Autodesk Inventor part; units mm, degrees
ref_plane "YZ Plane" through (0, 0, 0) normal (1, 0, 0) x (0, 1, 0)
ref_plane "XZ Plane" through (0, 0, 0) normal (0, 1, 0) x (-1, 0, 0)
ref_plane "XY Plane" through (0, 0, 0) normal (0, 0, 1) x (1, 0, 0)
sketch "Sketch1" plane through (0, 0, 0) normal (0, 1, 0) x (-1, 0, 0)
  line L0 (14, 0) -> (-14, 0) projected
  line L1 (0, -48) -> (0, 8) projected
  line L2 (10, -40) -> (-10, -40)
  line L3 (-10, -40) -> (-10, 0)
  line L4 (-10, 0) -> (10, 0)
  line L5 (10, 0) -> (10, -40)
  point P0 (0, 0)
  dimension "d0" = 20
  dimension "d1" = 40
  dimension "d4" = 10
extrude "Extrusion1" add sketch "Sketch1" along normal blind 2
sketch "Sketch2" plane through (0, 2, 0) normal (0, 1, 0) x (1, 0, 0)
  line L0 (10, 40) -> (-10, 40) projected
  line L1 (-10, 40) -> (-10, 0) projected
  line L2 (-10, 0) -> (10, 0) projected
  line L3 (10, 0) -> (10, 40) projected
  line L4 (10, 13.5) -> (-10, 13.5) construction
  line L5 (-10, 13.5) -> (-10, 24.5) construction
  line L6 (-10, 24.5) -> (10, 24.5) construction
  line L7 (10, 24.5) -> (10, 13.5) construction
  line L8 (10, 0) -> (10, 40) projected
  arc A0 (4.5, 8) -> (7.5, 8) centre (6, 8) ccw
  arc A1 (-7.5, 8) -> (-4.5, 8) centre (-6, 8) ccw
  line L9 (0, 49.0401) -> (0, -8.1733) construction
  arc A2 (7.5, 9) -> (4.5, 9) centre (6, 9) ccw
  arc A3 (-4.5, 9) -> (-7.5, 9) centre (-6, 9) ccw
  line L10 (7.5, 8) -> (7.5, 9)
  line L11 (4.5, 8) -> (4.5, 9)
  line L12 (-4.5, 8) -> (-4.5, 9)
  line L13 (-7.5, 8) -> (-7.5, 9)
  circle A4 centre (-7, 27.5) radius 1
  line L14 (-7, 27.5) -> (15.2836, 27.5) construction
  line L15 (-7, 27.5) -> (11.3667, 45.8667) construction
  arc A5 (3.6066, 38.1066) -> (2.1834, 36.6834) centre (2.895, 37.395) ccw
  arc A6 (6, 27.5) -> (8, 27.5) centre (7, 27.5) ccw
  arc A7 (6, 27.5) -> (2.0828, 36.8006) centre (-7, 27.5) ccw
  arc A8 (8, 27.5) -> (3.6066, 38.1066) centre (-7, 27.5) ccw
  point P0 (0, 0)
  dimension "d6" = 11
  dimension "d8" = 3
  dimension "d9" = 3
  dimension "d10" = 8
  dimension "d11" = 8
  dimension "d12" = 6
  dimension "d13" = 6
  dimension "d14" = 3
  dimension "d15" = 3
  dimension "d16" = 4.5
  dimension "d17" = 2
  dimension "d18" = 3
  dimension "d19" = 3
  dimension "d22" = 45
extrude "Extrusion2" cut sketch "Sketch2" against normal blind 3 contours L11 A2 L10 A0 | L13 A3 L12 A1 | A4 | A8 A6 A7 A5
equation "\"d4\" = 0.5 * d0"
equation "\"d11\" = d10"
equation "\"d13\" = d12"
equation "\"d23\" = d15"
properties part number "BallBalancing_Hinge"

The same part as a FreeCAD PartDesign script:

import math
import FreeCAD as App
import Part
import Sketcher

V = App.Vector

doc = App.newDocument("Part")
body = doc.addObject("PartDesign::Body", "Body")

# Sketch on XZ plane
sketch1 = body.newObject("Sketcher::SketchObject", "Sketch")
sketch1.AttachmentSupport = (doc.getObject("XZ_Plane"), [""])
sketch1.MapMode = "FlatFace"
sketch1.addGeometry(Part.LineSegment(V(-10, -40, 0), V(-10, 0, 0)), False)
sketch1.addGeometry(Part.LineSegment(V(-10, 0, 0), V(10, 0, 0)), False)
sketch1.addGeometry(Part.LineSegment(V(10, 0, 0), V(10, -40, 0)), False)
sketch1.addGeometry(Part.LineSegment(V(10, -40, 0), V(-10, -40, 0)), False)
sketch1.addConstraint(Sketcher.Constraint("Coincident", 0, 2, 1, 1))
sketch1.addConstraint(Sketcher.Constraint("Coincident", 1, 2, 2, 1))
sketch1.addConstraint(Sketcher.Constraint("Coincident", 2, 2, 3, 1))
sketch1.addConstraint(Sketcher.Constraint("Coincident", 3, 2, 0, 1))
sketch1.addConstraint(Sketcher.Constraint("Vertical", 0))
sketch1.addConstraint(Sketcher.Constraint("Horizontal", 1))
sketch1.addConstraint(Sketcher.Constraint("Vertical", 2))
sketch1.addConstraint(Sketcher.Constraint("Horizontal", 3))
sketch1.addConstraint(Sketcher.Constraint("Symmetric", 0, 2, 1, 2, -1, 1))
sketch1.addConstraint(Sketcher.Constraint("DistanceX", 1, 1, 1, 2, 20.0))
sketch1.addConstraint(Sketcher.Constraint("DistanceY", 0, 1, 0, 2, 40.0))
pad1 = body.newObject("PartDesign::Pad", "Pad")
pad1.Profile = sketch1
pad1.Length = 2
pad1.Reversed = True

# Sketch on XZ plane
sketch2 = body.newObject("Sketcher::SketchObject", "Sketch001")
sketch2.AttachmentSupport = (doc.getObject("XZ_Plane"), [""])
sketch2.MapMode = "FlatFace"
sketch2.AttachmentOffset = App.Placement(V(0, 0, -2), App.Rotation())
sketch2.addGeometry(Part.LineSegment(V(4.5, -9, 0), V(4.5, -8, 0)), False)
sketch2.addGeometry(Part.ArcOfCircle(Part.Circle(V(6, -8, 0), V(0, 0, 1), 1.5), math.radians(0), math.radians(180)), False)
sketch2.addGeometry(Part.LineSegment(V(7.5, -8, 0), V(7.5, -9, 0)), False)
sketch2.addGeometry(Part.ArcOfCircle(Part.Circle(V(6, -9, 0), V(0, 0, 1), 1.5), math.radians(180), math.radians(360)), False)
sketch2.addGeometry(Part.LineSegment(V(-7.5, -9, 0), V(-7.5, -8, 0)), False)
sketch2.addGeometry(Part.ArcOfCircle(Part.Circle(V(-6, -8, 0), V(0, 0, 1), 1.5), math.radians(0), math.radians(180)), False)
sketch2.addGeometry(Part.LineSegment(V(-4.5, -8, 0), V(-4.5, -9, 0)), False)
sketch2.addGeometry(Part.ArcOfCircle(Part.Circle(V(-6, -9, 0), V(0, 0, 1), 1.5), math.radians(180), math.radians(360)), False)
sketch2.addGeometry(Part.Circle(V(-7, -27.5, 0), V(0, 0, 1), 1), False)
sketch2.addGeometry(Part.ArcOfCircle(Part.Circle(V(-7, -27.5, 0), V(0, 0, 1), 15), math.radians(-45), math.radians(0)), False)
sketch2.addGeometry(Part.ArcOfCircle(Part.Circle(V(2.9, -37.4, 0), V(0, 0, 1), 1), math.radians(144), math.radians(315)), False)
sketch2.addGeometry(Part.ArcOfCircle(Part.Circle(V(-7, -27.5, 0), V(0, 0, 1), 13), math.radians(-46), math.radians(0)), False)
sketch2.addGeometry(Part.ArcOfCircle(Part.Circle(V(7, -27.5, 0), V(0, 0, 1), 1), math.radians(0), math.radians(180)), False)
sketch2.addConstraint(Sketcher.Constraint("Tangent", 0, 2, 1, 2))
sketch2.addConstraint(Sketcher.Constraint("Tangent", 1, 1, 2, 1))
sketch2.addConstraint(Sketcher.Constraint("Tangent", 2, 2, 3, 2))
sketch2.addConstraint(Sketcher.Constraint("Tangent", 3, 1, 0, 1))
sketch2.addConstraint(Sketcher.Constraint("Tangent", 4, 2, 5, 2))
sketch2.addConstraint(Sketcher.Constraint("Tangent", 5, 1, 6, 1))
sketch2.addConstraint(Sketcher.Constraint("Tangent", 6, 2, 7, 2))
sketch2.addConstraint(Sketcher.Constraint("Tangent", 7, 1, 4, 1))
sketch2.addConstraint(Sketcher.Constraint("Tangent", 9, 1, 10, 2))
sketch2.addConstraint(Sketcher.Constraint("Coincident", 10, 1, 11, 1))
sketch2.addConstraint(Sketcher.Constraint("Tangent", 11, 2, 12, 2))
sketch2.addConstraint(Sketcher.Constraint("Tangent", 12, 1, 9, 2))
sketch2.addConstraint(Sketcher.Constraint("Vertical", 0))
sketch2.addConstraint(Sketcher.Constraint("Vertical", 2))
sketch2.addConstraint(Sketcher.Constraint("Vertical", 4))
sketch2.addConstraint(Sketcher.Constraint("Vertical", 6))
sketch2.addConstraint(Sketcher.Constraint("Coincident", 9, 3, 8, 3))
sketch2.addConstraint(Sketcher.Constraint("Coincident", 11, 3, 8, 3))
sketch2.addConstraint(Sketcher.Constraint("Equal", 3, 5))
sketch2.addConstraint(Sketcher.Constraint("Equal", 8, 12))
sketch2.addConstraint(Sketcher.Constraint("Symmetric", 1, 3, 5, 3, -2))
sketch2.addConstraint(Sketcher.Constraint("Symmetric", 8, 3, 12, 3, -2))
sketch2.addConstraint(Sketcher.Constraint("Horizontal", 3, 3, 7, 3))
sketch2.addConstraint(Sketcher.Constraint("Vertical", 3, 3, 11, 2))
sketch2.addConstraint(Sketcher.Constraint("Diameter", 8, 2.0))
sketch2.addConstraint(Sketcher.Constraint("Radius", 1, 1.5))
sketch2.addConstraint(Sketcher.Constraint("DistanceX", -1, 1, 1, 3, 6.0))
sketch2.addConstraint(Sketcher.Constraint("DistanceY", 1, 3, -1, 1, 8.0))
sketch2.addConstraint(Sketcher.Constraint("DistanceY", 0, 1, 0, 2, 1.0))
sketch2.addConstraint(Sketcher.Constraint("DistanceY", 8, 3, -1, 1, 27.5))
sketch2.addConstraint(Sketcher.Constraint("Radius", 10, 1.0064))
sketch2.addConstraint(Sketcher.Constraint("DistanceX", -1, 1, 10, 3, 2.895))
pocket1 = body.newObject("PartDesign::Pocket", "Pocket")
pocket1.Profile = sketch2
pocket1.Length = 3
pocket1.Reversed = True

doc.recompute()
